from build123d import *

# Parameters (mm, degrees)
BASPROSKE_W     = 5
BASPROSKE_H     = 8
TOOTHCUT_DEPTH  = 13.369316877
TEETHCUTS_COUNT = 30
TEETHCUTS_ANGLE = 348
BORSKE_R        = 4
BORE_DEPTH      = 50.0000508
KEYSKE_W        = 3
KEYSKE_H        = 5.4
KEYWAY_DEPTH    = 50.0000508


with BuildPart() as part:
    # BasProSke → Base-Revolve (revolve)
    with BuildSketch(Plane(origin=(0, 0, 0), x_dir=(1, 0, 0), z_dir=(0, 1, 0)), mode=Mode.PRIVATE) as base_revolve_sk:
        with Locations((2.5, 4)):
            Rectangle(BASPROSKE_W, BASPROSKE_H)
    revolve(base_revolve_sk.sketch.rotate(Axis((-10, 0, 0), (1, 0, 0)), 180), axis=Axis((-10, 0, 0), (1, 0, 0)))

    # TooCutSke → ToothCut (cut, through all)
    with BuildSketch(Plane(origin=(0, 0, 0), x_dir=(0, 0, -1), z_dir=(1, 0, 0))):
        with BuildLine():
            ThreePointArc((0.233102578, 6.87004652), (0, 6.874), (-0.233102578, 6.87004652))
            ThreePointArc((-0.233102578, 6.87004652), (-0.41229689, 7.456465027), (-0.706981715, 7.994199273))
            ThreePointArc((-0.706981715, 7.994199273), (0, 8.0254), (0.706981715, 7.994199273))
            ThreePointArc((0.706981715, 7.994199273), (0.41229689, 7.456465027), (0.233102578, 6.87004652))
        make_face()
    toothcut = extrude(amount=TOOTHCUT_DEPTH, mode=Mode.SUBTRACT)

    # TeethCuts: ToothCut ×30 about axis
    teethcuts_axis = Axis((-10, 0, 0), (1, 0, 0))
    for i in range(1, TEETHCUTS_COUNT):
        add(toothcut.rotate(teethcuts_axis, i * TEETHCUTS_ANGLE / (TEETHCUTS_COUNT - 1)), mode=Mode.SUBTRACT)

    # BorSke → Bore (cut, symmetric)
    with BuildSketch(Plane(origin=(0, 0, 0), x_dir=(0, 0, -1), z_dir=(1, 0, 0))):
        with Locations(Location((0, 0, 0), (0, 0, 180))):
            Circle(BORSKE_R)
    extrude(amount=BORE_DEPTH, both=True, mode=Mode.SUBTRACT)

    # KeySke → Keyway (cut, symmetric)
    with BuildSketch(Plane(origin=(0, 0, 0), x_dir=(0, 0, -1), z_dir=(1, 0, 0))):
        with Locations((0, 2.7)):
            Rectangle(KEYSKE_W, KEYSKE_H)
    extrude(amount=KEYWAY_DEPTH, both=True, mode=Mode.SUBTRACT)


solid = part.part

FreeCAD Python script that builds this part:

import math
import FreeCAD as App
import Part
import Sketcher
from FreeCAD import Vector

doc = App.newDocument("Part")
params = doc.addObject("Spreadsheet::Sheet", "Params")
for row, (alias, value) in enumerate([
    ("sketch1_width", "5 mm"),
    ("sketch1_height", "8 mm"),
    ("revolution_angle", "360 deg"),
    ("sketch2_radius", "3 mm"),
    ("sketch3_diameter", "8 mm"),
    ("pocket2_length", "100.000102 mm"),
    ("sketch4_height", "3 mm"),
    ("sketch4_width", "5.4 mm"),
    ("pocket3_length", "100.000102 mm"),
], start=1):
    params.set(f"A{row}", alias)
    params.set(f"B{row}", "=" + value)
    params.setAlias(f"B{row}", alias)

body = doc.addObject("PartDesign::Body", "Body")

# Sketch on XZ plane
sketch1 = doc.addObject("Sketcher::SketchObject", "Sketch")
body.addObject(sketch1)
sketch1.AttachmentSupport = (doc.XZ_Plane, [""])
sketch1.MapMode = "FlatFace"
sketch1.addGeometry(Part.LineSegment(Vector(0, -8, 0), Vector(0, 0, 0)), False)
sketch1.addGeometry(Part.LineSegment(Vector(0, 0, 0), Vector(5, 0, 0)), False)
sketch1.addGeometry(Part.LineSegment(Vector(5, 0, 0), Vector(5, -8, 0)), False)
sketch1.addGeometry(Part.LineSegment(Vector(5, -8, 0), Vector(0, -8, 0)), False)
sketch1.addConstraint(Sketcher.Constraint("Coincident", 0, 2, 1, 1))
sketch1.addConstraint(Sketcher.Constraint("Coincident", 1, 2, 2, 1))
sketch1.addConstraint(Sketcher.Constraint("Coincident", 2, 2, 3, 1))
sketch1.addConstraint(Sketcher.Constraint("Coincident", 3, 2, 0, 1))
sketch1.addConstraint(Sketcher.Constraint("Vertical", 0))
sketch1.addConstraint(Sketcher.Constraint("Horizontal", 1))
sketch1.addConstraint(Sketcher.Constraint("Vertical", 2))
sketch1.addConstraint(Sketcher.Constraint("Horizontal", 3))
sketch1.addConstraint(Sketcher.Constraint("Coincident", 0, 2, -1, 1))
sketch1.addConstraint(Sketcher.Constraint("DistanceX", 1, 1, 1, 2, 5.0))
sketch1.addConstraint(Sketcher.Constraint("DistanceY", 0, 1, 0, 2, 8.0))
sketch1.setExpression("Constraints[9]", "Params.sketch1_width")
sketch1.setExpression("Constraints[10]", "Params.sketch1_height")
revolution = doc.addObject("PartDesign::Revolution", "Revolution")
body.addObject(revolution)
revolution.Profile = sketch1
revolution.ReferenceAxis = (sketch1, ["H_Axis"])
revolution.setExpression("Angle", "Params.revolution_angle")

# Sketch on YZ plane
sketch2 = doc.addObject("Sketcher::SketchObject", "Sketch001")
body.addObject(sketch2)
sketch2.AttachmentSupport = (doc.YZ_Plane, [""])
sketch2.MapMode = "FlatFace"
sketch2.addGeometry(Part.ArcOfCircle(Part.Circle(Vector(0, 0, 0), Vector(0, 0, 1), 6.87), math.radians(-1.94), math.radians(1.94)), False)
sketch2.addGeometry(Part.ArcOfCircle(Part.Circle(Vector(6.29, -3.18, 0), Vector(0, 0, 1), 3), math.radians(55), math.radians(79)), False)
sketch2.addGeometry(Part.ArcOfCircle(Part.Circle(Vector(0, 0, 0), Vector(0, 0, 1), 8.03), math.radians(-5.05), math.radians(5.05)), False)
sketch2.addGeometry(Part.ArcOfCircle(Part.Circle(Vector(6.29, 3.18, 0), Vector(0, 0, 1), 3), math.radians(-79), math.radians(-55)), False)
sketch2.addConstraint(Sketcher.Constraint("Coincident", 0, 1, 1, 2))
sketch2.addConstraint(Sketcher.Constraint("Coincident", 1, 1, 2, 1))
sketch2.addConstraint(Sketcher.Constraint("Coincident", 2, 2, 3, 2))
sketch2.addConstraint(Sketcher.Constraint("Coincident", 3, 1, 0, 2))
sketch2.addConstraint(Sketcher.Constraint("Coincident", 0, 3, -1, 1))
sketch2.addConstraint(Sketcher.Constraint("Coincident", 2, 3, -1, 1))
sketch2.addConstraint(Sketcher.Constraint("Equal", 1, 3))
sketch2.addConstraint(Sketcher.Constraint("Symmetric", 1, 3, 3, 3, -1))
sketch2.addConstraint(Sketcher.Constraint("Radius", 1, 3.0))
sketch2.addConstraint(Sketcher.Constraint("Radius", 0, 6.874))
sketch2.addConstraint(Sketcher.Constraint("Radius", 2, 8.0254))
sketch2.addConstraint(Sketcher.Constraint("DistanceX", -1, 1, 1, 1, 7.994199))
sketch2.addConstraint(Sketcher.Constraint("DistanceY", 1, 1, 3, 3, 3.883699))
sketch2.setExpression("Constraints[8]", "Params.sketch2_radius")
pocket1 = doc.addObject("PartDesign::Pocket", "Pocket")
body.addObject(pocket1)
pocket1.Profile = sketch2
pocket1.Type = "ThroughAll"
pocket1.Reversed = True
doc.recompute()

polarpattern = doc.addObject("PartDesign::PolarPattern", "PolarPattern")
body.addObject(polarpattern)
polarpattern.Originals = [pocket1]
polarpattern.Axis = (doc.X_Axis, [""])
polarpattern.Angle = 360
polarpattern.Occurrences = 30
body.Tip = polarpattern

# Sketch on YZ plane
sketch3 = doc.addObject("Sketcher::SketchObject", "Sketch002")
body.addObject(sketch3)
sketch3.AttachmentSupport = (doc.YZ_Plane, [""])
sketch3.MapMode = "FlatFace"
sketch3.addGeometry(Part.Circle(Vector(0, 0, 0), Vector(0, 0, 1), 4), False)
sketch3.addConstraint(Sketcher.Constraint("Coincident", 0, 3, -1, 1))
sketch3.addConstraint(Sketcher.Constraint("Diameter", 0, 8.0))
sketch3.setExpression("Constraints[1]", "Params.sketch3_diameter")
pocket2 = doc.addObject("PartDesign::Pocket", "Pocket001")
body.addObject(pocket2)
pocket2.Profile = sketch3
pocket2.setExpression("Length", "Params.pocket2_length")
pocket2.Midplane = True

# Sketch on YZ plane
sketch4 = doc.addObject("Sketcher::SketchObject", "Sketch003")
body.addObject(sketch4)
sketch4.AttachmentSupport = (doc.YZ_Plane, [""])
sketch4.MapMode = "FlatFace"
sketch4.addGeometry(Part.LineSegment(Vector(5.4, 1.5, 0), Vector(0, 1.5, 0)), False)
sketch4.addGeometry(Part.LineSegment(Vector(0, 1.5, 0), Vector(0, -1.5, 0)), False)
sketch4.addGeometry(Part.LineSegment(Vector(0, -1.5, 0), Vector(5.4, -1.5, 0)), False)
sketch4.addGeometry(Part.LineSegment(Vector(5.4, -1.5, 0), Vector(5.4, 1.5, 0)), False)
sketch4.addConstraint(Sketcher.Constraint("Coincident", 0, 2, 1, 1))
sketch4.addConstraint(Sketcher.Constraint("Coincident", 1, 2, 2, 1))
sketch4.addConstraint(Sketcher.Constraint("Coincident", 2, 2, 3, 1))
sketch4.addConstraint(Sketcher.Constraint("Coincident", 3, 2, 0, 1))
sketch4.addConstraint(Sketcher.Constraint("Horizontal", 0))
sketch4.addConstraint(Sketcher.Constraint("Vertical", 1))
sketch4.addConstraint(Sketcher.Constraint("Horizontal", 2))
sketch4.addConstraint(Sketcher.Constraint("Vertical", 3))
sketch4.addConstraint(Sketcher.Constraint("Symmetric", 0, 2, 1, 2, -1, 1))
sketch4.addConstraint(Sketcher.Constraint("DistanceY", 1, 2, 1, 1, 3.0))
sketch4.addConstraint(Sketcher.Constraint("DistanceX", 0, 2, 0, 1, 5.4))
sketch4.setExpression("Constraints[9]", "Params.sketch4_height")
sketch4.setExpression("Constraints[10]", "Params.sketch4_width")
pocket3 = doc.addObject("PartDesign::Pocket", "Pocket002")
body.addObject(pocket3)
pocket3.Profile = sketch4
pocket3.setExpression("Length", "Params.pocket3_length")
pocket3.Midplane = True

doc.recompute()
